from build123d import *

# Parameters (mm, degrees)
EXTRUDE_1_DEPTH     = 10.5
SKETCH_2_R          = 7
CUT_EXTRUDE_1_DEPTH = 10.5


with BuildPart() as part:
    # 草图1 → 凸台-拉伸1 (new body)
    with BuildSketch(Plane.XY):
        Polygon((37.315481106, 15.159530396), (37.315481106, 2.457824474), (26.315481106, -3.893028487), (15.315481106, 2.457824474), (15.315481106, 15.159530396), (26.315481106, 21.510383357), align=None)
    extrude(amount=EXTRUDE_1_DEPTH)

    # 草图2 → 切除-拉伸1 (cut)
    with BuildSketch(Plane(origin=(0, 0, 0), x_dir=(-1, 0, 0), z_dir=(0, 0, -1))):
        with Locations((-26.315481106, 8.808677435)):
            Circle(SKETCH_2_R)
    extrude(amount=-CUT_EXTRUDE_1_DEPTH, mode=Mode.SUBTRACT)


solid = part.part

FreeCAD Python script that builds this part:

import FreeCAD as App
import Part
import Sketcher
Q = App.Units.Quantity

doc = App.newDocument("Part")
body = doc.addObject("PartDesign::Body", "Body")

sketch1 = body.newObject("Sketcher::SketchObject", "Sketch")
sketch1.AttachmentSupport = (doc.getObject("XY_Plane"), [""])
sketch1.MapMode = "FlatFace"
sketch1.addGeometry(Part.LineSegment(App.Vector(37, 2, 0), App.Vector(37, 15, 0)), False)
sketch1.addGeometry(Part.LineSegment(App.Vector(37, 15, 0), App.Vector(26, 22, 0)), False)
sketch1.addGeometry(Part.LineSegment(App.Vector(26, 22, 0), App.Vector(15, 15, 0)), False)
sketch1.addGeometry(Part.LineSegment(App.Vector(15, 15, 0), App.Vector(15, 2, 0)), False)
sketch1.addGeometry(Part.LineSegment(App.Vector(15, 2, 0), App.Vector(26, -4, 0)), False)
sketch1.addGeometry(Part.LineSegment(App.Vector(26, -4, 0), App.Vector(37, 2, 0)), False)
sketch1.addConstraint(Sketcher.Constraint("Coincident", 0, 2, 1, 1))
sketch1.addConstraint(Sketcher.Constraint("Coincident", 1, 2, 2, 1))
sketch1.addConstraint(Sketcher.Constraint("Coincident", 2, 2, 3, 1))
sketch1.addConstraint(Sketcher.Constraint("Coincident", 3, 2, 4, 1))
sketch1.addConstraint(Sketcher.Constraint("Coincident", 4, 2, 5, 1))
sketch1.addConstraint(Sketcher.Constraint("Coincident", 5, 2, 0, 1))
sketch1.addConstraint(Sketcher.Constraint("Vertical", 0))
sketch1.addConstraint(Sketcher.Constraint("Vertical", 3))
sketch1.addConstraint(Sketcher.Constraint("Parallel", 1, 4))
sketch1.addConstraint(Sketcher.Constraint("Parallel", 2, 5))
sketch1.addConstraint(Sketcher.Constraint("Horizontal", 0, 2, 2, 2))
sketch1.addConstraint(Sketcher.Constraint("Horizontal", 3, 2, 5, 2))
sketch1.addConstraint(Sketcher.Constraint("Vertical", 1, 2, 4, 2))
sketch1.addConstraint(Sketcher.Constraint("Angle", 1, Q("150 deg")))
sketch1.addConstraint(Sketcher.Constraint("DistanceX", 1, 2, 0, 2, Q("11 mm")))
sketch1.addConstraint(Sketcher.Constraint("DistanceY", 0, 1, 0, 2, Q("12.701706 mm")))
sketch1.addConstraint(Sketcher.Constraint("DistanceX", -1, 1, 0, 2, Q("37.315481 mm")))
sketch1.addConstraint(Sketcher.Constraint("DistanceY", -1, 1, 0, 2, Q("15.15953 mm")))
pad1 = body.newObject("PartDesign::Pad", "Pad")
pad1.Profile = sketch1
pad1.Length = 10.5

sketch2 = body.newObject("Sketcher::SketchObject", "Sketch001")
sketch2.AttachmentSupport = (doc.getObject("XY_Plane"), [""])
sketch2.MapMode = "FlatFace"
sketch2.addGeometry(Part.Circle(App.Vector(26, 9, 0), App.Vector(0, 0, 1), 7), False)
sketch2.addConstraint(Sketcher.Constraint("Diameter", 0, Q("14 mm")))
sketch2.addConstraint(Sketcher.Constraint("DistanceX", -1, 1, 0, 3, Q("26.315481 mm")))
sketch2.addConstraint(Sketcher.Constraint("DistanceY", -1, 1, 0, 3, Q("8.808677 mm")))
pocket1 = body.newObject("PartDesign::Pocket", "Pocket")
pocket1.Profile = sketch2
pocket1.Length = 10.5
pocket1.Reversed = True

doc.recompute()
